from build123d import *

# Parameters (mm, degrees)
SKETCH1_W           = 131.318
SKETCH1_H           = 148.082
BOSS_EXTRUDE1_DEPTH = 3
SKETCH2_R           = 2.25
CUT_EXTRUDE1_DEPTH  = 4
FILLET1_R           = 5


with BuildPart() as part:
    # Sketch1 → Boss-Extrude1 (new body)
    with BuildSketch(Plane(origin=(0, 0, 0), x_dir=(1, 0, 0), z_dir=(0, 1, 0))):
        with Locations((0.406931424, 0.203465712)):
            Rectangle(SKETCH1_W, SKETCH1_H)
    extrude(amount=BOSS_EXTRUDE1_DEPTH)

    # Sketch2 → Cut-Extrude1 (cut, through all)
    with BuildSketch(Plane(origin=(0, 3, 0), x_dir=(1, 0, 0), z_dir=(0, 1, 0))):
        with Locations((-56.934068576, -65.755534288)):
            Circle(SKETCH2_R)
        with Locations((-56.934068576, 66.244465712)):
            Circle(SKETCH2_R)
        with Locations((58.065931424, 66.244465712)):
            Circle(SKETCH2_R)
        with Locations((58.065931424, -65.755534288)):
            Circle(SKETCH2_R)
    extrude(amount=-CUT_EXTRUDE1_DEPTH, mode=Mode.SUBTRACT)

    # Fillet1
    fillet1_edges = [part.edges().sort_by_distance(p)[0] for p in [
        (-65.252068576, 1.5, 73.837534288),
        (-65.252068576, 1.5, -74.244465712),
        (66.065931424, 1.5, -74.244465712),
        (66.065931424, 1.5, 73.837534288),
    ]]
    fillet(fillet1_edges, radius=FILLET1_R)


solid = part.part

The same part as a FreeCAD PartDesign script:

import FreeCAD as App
import Part
import Sketcher


def edges_at(feature, points):
    """Names of the edges that pass closest to the given points."""
    edges = feature.Shape.Edges
    near = lambda p: min(range(len(edges)), key=lambda i: edges[i].distToShape(Part.Vertex(*p))[0])
    return sorted({f"Edge{near(p) + 1}" for p in points})


def add_polygon(sketch, points):
    """Adds a closed chain of lines whose ends are joined by coincident constraints."""
    first, n = sketch.GeometryCount, len(points)
    for a, b in zip(points, points[1:] + points[:1]):
        sketch.addGeometry(Part.LineSegment(App.Vector(*a, 0), App.Vector(*b, 0)), False)
    for i in range(n):
        sketch.addConstraint(Sketcher.Constraint("Coincident", first + i, 2, first + (i + 1) % n, 1))

doc = App.newDocument("Part")
body = doc.addObject("PartDesign::Body", "Body")

# Sketch on XZ plane
sketch1 = body.newObject("Sketcher::SketchObject", "Sketch")
sketch1.AttachmentSupport = (doc.getObject("XZ_Plane"), [""])
sketch1.MapMode = "FlatFace"
add_polygon(sketch1, [(-65, -74), (-65, 74), (66, 74), (66, -74)])  # lines 0-3
sketch1.addConstraint(Sketcher.Constraint("Vertical", 0))
sketch1.addConstraint(Sketcher.Constraint("Horizontal", 1))
sketch1.addConstraint(Sketcher.Constraint("Vertical", 2))
sketch1.addConstraint(Sketcher.Constraint("Horizontal", 3))
sketch1.addConstraint(Sketcher.Constraint("DistanceX", 1, 1, 1, 2, 131.318))
sketch1.addConstraint(Sketcher.Constraint("DistanceY", 0, 1, 0, 2, 148.082))
sketch1.addConstraint(Sketcher.Constraint("DistanceX", 0, 2, -1, 1, 65.252069))
sketch1.addConstraint(Sketcher.Constraint("DistanceY", -1, 1, 0, 2, 73.837534))
pad1 = body.newObject("PartDesign::Pad", "Pad")
pad1.Profile = sketch1
pad1.Length = 3
pad1.Reversed = True

# Sketch on XZ plane
sketch2 = body.newObject("Sketcher::SketchObject", "Sketch001")
sketch2.AttachmentSupport = (doc.getObject("XZ_Plane"), [""])
sketch2.MapMode = "FlatFace"
sketch2.AttachmentOffset = App.Placement(App.Vector(0, 0, -3), App.Rotation())
sketch2.addGeometry(Part.Circle(App.Vector(-56.9, 65.8, 0), App.Vector(0, 0, 1), 2.2), False)
sketch2.addGeometry(Part.Circle(App.Vector(-56.9, -66.2, 0), App.Vector(0, 0, 1), 2.2), False)
sketch2.addGeometry(Part.Circle(App.Vector(58.1, -66.2, 0), App.Vector(0, 0, 1), 2.2), False)
sketch2.addGeometry(Part.Circle(App.Vector(58.1, 65.8, 0), App.Vector(0, 0, 1), 2.2), False)
sketch2.addConstraint(Sketcher.Constraint("Equal", 0, 1))
sketch2.addConstraint(Sketcher.Constraint("Equal", 1, 2))
sketch2.addConstraint(Sketcher.Constraint("Equal", 2, 3))
sketch2.addConstraint(Sketcher.Constraint("Horizontal", 1, 3, 2, 3))
sketch2.addConstraint(Sketcher.Constraint("Horizontal", 0, 3, 3, 3))
sketch2.addConstraint(Sketcher.Constraint("Vertical", 0, 3, 1, 3))
sketch2.addConstraint(Sketcher.Constraint("Vertical", 2, 3, 3, 3))
sketch2.addConstraint(Sketcher.Constraint("Diameter", 0, 4.5))
sketch2.addConstraint(Sketcher.Constraint("DistanceY", 1, 3, 0, 3, 132.0))
sketch2.addConstraint(Sketcher.Constraint("DistanceX", 1, 3, 2, 3, 115.0))
sketch2.addConstraint(Sketcher.Constraint("DistanceX", 0, 3, -1, 1, 56.934069))
sketch2.addConstraint(Sketcher.Constraint("DistanceY", -1, 1, 0, 3, 65.755534))
pocket1 = body.newObject("PartDesign::Pocket", "Pocket")
pocket1.Profile = sketch2
pocket1.Type = "ThroughAll"
pocket1.Reversed = True
doc.recompute()

fillet = body.newObject("PartDesign::Fillet", "Fillet")
fillet.Base = (pocket1, edges_at(pocket1, [
    (-65.252, 1.5, 73.838),
    (-65.252, 1.5, -74.244),
    (66.066, 1.5, -74.244),
    (66.066, 1.5, 73.838),
]))
fillet.Radius = 5

doc.recompute()
